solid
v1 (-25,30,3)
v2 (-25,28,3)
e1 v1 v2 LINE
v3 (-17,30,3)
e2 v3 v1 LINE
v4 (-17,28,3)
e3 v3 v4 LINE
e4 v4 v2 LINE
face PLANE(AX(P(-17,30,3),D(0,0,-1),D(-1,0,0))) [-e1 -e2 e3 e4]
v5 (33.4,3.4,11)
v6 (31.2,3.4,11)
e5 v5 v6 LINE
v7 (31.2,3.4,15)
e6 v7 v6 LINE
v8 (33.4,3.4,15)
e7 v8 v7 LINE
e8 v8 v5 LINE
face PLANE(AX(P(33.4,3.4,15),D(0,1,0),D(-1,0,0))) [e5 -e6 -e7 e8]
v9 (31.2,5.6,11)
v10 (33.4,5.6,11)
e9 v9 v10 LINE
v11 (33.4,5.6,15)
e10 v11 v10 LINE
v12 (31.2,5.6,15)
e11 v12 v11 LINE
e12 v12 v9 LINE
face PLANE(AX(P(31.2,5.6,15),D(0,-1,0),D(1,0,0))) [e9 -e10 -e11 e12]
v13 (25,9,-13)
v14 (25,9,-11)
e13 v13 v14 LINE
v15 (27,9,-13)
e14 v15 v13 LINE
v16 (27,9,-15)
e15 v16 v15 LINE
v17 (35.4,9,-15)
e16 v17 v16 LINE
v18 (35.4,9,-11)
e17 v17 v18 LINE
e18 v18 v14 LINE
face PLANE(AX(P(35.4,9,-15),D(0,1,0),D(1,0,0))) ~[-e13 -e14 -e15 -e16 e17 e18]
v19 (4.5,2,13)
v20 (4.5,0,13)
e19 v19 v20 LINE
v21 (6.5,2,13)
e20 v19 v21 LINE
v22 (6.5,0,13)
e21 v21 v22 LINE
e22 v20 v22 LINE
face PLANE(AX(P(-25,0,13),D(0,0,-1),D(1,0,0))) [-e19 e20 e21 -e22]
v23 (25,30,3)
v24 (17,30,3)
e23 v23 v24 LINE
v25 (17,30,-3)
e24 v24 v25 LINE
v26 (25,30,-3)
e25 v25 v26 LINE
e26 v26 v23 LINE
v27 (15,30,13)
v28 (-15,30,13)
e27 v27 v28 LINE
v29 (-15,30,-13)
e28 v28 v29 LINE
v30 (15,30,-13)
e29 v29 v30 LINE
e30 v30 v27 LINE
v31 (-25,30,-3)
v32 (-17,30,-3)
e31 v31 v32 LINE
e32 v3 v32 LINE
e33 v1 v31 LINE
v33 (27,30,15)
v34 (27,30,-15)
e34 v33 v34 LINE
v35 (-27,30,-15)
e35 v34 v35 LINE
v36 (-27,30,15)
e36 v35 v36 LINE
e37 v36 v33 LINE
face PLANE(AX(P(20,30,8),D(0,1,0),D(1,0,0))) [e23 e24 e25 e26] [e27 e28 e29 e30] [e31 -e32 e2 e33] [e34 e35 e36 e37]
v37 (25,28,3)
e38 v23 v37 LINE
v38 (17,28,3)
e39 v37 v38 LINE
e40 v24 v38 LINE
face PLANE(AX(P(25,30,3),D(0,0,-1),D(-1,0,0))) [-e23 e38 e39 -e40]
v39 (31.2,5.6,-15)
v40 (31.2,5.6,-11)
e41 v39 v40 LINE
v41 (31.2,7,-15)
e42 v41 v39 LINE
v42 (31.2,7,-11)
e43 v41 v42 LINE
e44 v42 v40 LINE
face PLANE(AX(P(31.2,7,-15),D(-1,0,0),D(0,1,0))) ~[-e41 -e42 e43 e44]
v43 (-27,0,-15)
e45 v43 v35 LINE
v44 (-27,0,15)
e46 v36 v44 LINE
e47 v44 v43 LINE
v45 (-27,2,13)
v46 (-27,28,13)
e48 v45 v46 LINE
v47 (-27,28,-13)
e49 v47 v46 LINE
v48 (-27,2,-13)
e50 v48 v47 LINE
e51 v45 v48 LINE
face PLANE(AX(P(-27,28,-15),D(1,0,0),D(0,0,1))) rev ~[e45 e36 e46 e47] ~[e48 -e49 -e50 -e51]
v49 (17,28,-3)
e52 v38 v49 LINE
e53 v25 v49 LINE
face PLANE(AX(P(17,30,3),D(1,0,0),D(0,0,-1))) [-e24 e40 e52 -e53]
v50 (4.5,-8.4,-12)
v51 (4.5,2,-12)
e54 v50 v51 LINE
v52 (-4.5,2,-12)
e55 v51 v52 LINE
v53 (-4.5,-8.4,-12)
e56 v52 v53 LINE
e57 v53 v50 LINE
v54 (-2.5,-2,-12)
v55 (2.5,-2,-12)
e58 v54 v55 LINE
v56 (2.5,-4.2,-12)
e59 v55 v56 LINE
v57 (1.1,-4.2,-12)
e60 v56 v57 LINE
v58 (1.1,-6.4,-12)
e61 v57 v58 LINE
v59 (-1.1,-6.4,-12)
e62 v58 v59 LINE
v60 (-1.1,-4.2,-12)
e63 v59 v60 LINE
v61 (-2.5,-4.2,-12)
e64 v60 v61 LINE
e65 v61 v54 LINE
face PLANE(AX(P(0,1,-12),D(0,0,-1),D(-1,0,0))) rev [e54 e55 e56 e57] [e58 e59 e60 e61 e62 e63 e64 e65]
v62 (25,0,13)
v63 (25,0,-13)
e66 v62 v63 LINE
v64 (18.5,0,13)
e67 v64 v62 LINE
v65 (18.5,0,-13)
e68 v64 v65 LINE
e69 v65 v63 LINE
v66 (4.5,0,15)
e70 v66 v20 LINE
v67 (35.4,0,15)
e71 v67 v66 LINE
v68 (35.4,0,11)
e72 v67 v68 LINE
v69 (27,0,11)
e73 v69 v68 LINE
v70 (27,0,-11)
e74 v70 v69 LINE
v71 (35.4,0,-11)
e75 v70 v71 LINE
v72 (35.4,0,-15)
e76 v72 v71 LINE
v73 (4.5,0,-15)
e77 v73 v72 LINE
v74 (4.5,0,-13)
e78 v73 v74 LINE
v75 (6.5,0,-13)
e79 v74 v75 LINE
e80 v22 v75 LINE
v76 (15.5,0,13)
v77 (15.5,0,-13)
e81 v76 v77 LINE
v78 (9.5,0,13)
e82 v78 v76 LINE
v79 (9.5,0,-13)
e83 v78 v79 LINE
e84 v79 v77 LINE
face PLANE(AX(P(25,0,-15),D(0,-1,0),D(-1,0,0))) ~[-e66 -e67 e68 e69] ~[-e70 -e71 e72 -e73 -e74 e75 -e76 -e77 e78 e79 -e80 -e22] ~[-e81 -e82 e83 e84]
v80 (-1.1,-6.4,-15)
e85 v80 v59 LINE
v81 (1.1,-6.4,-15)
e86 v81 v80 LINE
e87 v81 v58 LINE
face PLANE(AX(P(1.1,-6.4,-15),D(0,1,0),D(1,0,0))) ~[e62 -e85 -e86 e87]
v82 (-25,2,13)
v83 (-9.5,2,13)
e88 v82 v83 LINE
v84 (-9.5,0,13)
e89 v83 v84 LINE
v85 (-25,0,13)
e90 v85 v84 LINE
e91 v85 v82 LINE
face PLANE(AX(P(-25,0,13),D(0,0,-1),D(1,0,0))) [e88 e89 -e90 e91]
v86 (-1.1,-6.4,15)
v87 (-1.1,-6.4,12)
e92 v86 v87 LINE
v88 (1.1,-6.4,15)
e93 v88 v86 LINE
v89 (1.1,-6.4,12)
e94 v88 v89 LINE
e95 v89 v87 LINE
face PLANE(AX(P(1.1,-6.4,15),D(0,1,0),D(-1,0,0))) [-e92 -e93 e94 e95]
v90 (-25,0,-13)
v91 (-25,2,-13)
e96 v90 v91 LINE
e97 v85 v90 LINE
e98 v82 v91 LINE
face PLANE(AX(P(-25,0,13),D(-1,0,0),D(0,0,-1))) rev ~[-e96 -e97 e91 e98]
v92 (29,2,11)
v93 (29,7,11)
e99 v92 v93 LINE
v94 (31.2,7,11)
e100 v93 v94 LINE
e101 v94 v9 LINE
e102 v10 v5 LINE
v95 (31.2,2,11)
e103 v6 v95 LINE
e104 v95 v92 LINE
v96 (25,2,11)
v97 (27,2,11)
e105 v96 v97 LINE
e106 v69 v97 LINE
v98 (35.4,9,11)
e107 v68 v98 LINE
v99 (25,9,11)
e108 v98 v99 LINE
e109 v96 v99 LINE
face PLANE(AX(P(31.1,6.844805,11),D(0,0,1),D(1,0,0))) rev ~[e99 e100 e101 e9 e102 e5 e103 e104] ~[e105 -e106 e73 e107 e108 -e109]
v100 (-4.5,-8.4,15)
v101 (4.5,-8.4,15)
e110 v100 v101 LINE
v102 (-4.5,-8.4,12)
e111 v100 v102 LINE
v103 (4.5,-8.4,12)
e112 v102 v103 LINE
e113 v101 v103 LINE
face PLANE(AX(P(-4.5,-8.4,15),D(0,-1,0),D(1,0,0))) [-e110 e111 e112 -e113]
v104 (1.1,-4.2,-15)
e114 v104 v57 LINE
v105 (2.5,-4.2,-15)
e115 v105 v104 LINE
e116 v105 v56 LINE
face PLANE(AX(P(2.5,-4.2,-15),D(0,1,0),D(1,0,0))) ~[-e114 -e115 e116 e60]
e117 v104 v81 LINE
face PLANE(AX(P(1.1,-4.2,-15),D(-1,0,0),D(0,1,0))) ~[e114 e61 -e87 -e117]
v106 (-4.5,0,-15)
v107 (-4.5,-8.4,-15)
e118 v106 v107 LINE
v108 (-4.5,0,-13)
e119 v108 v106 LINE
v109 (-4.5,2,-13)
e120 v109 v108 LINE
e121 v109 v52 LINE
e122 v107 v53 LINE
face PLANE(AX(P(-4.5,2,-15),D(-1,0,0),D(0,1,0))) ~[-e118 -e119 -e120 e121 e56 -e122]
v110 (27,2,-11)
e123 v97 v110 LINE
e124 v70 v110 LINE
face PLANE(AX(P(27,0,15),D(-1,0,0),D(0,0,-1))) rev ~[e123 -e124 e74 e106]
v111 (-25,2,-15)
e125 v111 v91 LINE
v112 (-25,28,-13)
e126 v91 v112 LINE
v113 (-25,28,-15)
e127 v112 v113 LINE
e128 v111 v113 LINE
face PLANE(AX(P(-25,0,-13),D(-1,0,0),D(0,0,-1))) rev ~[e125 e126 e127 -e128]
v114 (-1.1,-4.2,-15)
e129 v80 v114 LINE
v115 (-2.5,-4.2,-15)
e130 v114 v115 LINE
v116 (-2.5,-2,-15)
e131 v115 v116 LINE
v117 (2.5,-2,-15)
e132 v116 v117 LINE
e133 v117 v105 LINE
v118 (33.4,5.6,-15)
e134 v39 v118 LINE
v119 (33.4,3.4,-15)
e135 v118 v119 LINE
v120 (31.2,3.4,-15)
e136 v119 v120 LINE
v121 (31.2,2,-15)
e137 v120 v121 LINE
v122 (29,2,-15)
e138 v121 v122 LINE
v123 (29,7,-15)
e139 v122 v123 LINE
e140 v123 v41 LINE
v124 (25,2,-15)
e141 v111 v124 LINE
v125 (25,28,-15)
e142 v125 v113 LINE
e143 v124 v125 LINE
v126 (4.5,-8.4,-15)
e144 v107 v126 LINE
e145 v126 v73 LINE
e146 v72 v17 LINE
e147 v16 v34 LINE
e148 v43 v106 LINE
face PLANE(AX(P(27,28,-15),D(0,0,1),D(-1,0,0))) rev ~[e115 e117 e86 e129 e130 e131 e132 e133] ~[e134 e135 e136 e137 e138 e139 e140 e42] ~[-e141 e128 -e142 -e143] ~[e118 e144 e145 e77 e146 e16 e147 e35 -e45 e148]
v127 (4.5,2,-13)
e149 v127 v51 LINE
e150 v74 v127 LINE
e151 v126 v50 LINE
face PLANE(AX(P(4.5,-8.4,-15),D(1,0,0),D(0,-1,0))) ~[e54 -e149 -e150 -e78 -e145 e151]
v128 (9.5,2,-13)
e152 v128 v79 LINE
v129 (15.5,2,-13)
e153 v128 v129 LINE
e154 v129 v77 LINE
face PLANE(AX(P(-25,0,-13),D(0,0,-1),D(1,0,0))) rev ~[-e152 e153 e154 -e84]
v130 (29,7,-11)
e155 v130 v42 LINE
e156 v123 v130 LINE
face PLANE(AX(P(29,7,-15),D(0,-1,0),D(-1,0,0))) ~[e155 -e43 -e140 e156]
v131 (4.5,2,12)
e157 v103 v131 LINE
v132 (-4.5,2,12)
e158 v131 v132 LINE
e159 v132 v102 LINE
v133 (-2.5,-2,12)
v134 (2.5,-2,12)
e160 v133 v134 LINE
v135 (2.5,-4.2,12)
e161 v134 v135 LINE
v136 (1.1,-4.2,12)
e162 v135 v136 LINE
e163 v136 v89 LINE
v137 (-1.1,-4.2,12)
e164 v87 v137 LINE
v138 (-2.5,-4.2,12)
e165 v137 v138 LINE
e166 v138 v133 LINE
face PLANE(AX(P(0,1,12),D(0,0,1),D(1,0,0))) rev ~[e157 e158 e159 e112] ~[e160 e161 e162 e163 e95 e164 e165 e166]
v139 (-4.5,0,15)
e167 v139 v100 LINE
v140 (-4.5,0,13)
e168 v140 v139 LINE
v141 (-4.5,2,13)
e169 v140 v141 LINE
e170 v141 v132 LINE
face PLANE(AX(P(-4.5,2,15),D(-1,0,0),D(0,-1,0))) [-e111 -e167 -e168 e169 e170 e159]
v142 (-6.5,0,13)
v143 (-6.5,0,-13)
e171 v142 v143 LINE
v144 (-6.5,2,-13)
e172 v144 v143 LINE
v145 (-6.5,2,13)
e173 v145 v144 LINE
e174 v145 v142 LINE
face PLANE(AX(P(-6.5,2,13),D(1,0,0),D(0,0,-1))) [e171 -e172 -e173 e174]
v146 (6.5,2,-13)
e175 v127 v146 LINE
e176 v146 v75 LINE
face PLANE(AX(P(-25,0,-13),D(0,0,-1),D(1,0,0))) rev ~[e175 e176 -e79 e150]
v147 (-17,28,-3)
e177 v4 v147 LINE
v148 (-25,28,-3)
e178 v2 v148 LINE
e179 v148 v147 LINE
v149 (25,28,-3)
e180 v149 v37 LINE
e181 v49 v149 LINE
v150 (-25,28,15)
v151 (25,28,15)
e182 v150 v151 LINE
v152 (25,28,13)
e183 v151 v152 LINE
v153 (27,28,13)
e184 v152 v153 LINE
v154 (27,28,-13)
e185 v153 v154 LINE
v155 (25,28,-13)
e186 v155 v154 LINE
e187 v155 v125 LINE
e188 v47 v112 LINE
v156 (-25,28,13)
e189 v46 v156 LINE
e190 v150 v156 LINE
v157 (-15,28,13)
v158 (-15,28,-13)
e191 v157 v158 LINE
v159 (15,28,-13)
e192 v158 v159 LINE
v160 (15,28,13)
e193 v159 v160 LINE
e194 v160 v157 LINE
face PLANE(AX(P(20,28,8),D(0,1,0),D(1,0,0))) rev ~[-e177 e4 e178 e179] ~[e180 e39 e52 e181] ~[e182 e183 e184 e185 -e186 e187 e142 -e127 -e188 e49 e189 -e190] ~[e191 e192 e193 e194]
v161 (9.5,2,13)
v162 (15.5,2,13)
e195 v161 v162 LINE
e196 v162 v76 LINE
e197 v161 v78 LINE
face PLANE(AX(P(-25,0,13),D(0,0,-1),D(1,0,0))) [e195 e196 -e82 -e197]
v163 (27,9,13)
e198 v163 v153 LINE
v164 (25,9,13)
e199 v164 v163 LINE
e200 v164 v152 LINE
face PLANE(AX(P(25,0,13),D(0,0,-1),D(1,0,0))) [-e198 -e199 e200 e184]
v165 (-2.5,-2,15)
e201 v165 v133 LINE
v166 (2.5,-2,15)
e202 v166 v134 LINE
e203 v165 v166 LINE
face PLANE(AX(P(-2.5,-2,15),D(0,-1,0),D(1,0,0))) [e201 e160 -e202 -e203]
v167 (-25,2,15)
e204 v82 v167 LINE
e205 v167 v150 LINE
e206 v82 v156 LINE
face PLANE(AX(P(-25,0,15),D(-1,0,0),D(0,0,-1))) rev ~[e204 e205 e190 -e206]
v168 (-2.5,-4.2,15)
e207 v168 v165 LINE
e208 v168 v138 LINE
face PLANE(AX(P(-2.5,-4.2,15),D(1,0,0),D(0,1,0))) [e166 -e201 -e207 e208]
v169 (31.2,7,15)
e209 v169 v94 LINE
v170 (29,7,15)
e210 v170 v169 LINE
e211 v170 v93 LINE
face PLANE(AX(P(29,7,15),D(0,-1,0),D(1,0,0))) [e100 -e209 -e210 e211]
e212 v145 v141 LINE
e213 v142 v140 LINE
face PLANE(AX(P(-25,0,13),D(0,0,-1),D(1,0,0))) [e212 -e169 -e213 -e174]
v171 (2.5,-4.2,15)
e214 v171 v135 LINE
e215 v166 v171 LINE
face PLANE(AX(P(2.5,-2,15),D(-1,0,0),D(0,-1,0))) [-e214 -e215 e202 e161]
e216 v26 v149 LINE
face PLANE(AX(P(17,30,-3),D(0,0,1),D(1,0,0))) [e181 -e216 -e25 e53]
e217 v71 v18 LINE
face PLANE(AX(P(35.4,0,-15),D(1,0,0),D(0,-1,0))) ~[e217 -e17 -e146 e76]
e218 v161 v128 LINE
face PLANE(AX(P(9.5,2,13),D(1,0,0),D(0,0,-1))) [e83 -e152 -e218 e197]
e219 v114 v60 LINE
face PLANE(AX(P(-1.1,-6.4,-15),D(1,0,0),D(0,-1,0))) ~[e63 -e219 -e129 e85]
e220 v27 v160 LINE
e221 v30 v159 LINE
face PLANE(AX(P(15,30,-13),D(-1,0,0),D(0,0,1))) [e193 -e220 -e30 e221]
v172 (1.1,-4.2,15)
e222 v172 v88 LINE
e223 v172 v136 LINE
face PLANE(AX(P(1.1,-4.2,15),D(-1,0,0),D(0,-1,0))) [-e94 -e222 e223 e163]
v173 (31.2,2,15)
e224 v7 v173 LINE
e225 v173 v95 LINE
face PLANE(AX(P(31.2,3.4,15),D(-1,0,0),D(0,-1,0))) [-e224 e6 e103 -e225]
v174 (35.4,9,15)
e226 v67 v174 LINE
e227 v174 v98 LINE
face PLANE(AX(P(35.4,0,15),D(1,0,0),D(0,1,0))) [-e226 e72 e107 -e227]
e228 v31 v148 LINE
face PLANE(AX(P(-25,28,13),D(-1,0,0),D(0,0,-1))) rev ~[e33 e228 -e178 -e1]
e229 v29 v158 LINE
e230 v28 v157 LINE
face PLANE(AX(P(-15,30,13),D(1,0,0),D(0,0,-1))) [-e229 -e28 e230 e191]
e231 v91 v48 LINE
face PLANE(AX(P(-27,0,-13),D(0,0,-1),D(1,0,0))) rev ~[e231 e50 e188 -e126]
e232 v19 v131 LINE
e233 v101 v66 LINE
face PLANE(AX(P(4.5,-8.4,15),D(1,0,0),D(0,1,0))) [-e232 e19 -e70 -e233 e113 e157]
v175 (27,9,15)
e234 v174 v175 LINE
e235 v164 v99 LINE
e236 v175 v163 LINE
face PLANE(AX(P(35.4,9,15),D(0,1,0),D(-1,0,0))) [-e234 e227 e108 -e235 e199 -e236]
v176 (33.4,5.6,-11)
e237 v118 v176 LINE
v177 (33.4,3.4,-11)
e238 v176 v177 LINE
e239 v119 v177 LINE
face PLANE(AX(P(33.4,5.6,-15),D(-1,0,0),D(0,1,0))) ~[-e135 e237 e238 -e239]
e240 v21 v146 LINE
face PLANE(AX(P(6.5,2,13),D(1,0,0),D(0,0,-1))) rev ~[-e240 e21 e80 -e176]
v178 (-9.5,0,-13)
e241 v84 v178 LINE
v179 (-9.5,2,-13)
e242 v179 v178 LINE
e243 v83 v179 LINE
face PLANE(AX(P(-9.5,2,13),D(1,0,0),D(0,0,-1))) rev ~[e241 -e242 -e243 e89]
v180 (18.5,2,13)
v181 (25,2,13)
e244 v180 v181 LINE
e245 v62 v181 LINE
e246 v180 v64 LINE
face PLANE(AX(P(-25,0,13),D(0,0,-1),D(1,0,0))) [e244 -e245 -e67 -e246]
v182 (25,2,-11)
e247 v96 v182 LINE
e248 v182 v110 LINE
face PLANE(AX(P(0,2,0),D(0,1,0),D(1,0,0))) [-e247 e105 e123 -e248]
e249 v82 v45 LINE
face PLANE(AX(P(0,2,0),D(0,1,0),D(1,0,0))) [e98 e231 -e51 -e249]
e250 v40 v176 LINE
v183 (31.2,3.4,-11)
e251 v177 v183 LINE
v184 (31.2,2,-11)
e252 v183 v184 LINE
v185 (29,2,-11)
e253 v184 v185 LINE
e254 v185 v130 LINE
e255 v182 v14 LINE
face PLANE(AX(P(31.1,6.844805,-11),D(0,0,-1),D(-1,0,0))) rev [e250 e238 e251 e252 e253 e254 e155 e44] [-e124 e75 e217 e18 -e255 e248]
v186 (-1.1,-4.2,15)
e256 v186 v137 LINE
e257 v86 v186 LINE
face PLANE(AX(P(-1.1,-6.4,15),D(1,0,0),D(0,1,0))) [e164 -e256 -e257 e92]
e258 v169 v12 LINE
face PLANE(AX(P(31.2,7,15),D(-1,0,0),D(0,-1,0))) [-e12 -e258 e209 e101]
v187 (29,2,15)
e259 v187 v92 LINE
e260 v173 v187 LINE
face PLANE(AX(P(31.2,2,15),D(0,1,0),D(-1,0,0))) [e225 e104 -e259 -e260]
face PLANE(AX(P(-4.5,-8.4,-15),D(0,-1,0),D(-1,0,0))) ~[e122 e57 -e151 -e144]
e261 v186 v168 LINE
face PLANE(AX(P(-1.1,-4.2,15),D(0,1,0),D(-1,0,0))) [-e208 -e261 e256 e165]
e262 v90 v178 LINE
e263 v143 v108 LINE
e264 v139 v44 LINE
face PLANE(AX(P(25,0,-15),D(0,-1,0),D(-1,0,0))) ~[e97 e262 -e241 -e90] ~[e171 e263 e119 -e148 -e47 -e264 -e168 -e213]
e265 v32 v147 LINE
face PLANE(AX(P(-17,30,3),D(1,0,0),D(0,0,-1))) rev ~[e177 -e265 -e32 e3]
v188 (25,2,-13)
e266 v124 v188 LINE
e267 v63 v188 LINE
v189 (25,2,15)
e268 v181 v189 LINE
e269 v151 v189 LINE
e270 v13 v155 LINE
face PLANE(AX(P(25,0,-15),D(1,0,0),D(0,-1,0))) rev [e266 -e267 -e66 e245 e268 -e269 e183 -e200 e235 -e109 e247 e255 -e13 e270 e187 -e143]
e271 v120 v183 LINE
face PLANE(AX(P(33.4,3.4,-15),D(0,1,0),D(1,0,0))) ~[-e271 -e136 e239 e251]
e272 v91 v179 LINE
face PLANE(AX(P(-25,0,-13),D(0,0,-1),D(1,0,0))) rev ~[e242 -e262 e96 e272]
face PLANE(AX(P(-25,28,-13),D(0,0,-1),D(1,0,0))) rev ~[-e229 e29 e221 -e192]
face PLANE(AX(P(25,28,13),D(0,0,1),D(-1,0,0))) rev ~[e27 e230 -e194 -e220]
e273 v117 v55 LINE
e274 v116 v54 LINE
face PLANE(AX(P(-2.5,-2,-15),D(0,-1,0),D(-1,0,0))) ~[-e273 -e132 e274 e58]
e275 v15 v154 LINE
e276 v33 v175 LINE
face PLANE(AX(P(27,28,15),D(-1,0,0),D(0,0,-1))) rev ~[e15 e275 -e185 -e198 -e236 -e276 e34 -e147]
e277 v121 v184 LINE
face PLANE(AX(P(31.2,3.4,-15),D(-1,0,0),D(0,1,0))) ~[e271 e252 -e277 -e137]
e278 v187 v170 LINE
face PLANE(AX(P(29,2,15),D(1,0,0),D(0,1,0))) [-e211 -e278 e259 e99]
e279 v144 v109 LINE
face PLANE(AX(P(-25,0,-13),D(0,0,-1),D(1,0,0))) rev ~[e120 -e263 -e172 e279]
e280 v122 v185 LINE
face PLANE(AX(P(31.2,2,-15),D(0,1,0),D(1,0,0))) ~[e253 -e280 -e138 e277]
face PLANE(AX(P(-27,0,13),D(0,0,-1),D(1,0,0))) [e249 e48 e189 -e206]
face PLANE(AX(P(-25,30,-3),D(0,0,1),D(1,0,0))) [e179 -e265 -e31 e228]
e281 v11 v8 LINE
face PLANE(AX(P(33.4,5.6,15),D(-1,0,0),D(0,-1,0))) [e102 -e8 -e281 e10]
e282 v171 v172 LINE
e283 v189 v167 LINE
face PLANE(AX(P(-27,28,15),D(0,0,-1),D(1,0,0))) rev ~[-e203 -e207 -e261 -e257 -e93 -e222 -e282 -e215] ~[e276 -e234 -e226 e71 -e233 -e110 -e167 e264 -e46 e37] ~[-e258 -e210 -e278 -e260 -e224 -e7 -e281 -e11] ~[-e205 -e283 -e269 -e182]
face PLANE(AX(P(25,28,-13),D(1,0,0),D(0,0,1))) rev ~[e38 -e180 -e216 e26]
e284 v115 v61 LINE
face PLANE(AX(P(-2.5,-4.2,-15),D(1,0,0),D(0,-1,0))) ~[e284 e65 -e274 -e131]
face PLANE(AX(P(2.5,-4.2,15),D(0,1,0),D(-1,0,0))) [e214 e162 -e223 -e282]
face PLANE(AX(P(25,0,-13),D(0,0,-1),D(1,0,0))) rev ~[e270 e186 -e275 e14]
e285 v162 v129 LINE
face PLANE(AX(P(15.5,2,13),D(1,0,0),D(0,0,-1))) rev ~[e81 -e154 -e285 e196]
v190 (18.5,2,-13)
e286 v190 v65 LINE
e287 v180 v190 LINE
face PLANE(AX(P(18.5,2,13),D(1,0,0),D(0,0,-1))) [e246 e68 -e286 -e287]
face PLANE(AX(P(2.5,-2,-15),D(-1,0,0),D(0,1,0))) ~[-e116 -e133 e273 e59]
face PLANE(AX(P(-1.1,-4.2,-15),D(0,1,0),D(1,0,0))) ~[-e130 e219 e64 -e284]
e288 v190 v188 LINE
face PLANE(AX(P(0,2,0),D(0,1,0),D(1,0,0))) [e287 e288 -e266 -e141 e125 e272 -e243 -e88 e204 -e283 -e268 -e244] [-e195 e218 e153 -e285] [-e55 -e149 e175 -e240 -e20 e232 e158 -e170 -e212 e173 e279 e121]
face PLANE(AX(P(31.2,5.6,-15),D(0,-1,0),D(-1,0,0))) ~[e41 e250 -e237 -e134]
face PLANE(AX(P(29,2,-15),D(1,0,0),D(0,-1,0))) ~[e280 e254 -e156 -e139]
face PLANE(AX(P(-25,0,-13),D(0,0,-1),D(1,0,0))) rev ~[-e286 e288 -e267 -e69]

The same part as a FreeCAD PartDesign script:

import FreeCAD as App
import Part
import Sketcher
from FreeCAD import Vector

doc = App.newDocument("Part")
body = doc.addObject("PartDesign::Body", "Body")

# Sketch on XZ plane
sketch1 = body.newObject("Sketcher::SketchObject", "Sketch")
sketch1.AttachmentSupport = (doc.getObject("XZ_Plane"), [""])
sketch1.MapMode = "FlatFace"
sketch1.addGeometry(Part.LineSegment(Vector(-27, -15, 0), Vector(-27, 15, 0)), False)
sketch1.addGeometry(Part.LineSegment(Vector(-27, 15, 0), Vector(27, 15, 0)), False)
sketch1.addGeometry(Part.LineSegment(Vector(27, 15, 0), Vector(27, -15, 0)), False)
sketch1.addGeometry(Part.LineSegment(Vector(27, -15, 0), Vector(-27, -15, 0)), False)
sketch1.addGeometry(Part.LineSegment(Vector(25, 13, 0), Vector(-25, 13, 0)), False)
sketch1.addGeometry(Part.LineSegment(Vector(-25, 13, 0), Vector(-25, -13, 0)), False)
sketch1.addGeometry(Part.LineSegment(Vector(-25, -13, 0), Vector(25, -13, 0)), False)
sketch1.addGeometry(Part.LineSegment(Vector(25, -13, 0), Vector(25, 13, 0)), False)
sketch1.addConstraint(Sketcher.Constraint("Coincident", 0, 2, 1, 1))
sketch1.addConstraint(Sketcher.Constraint("Coincident", 1, 2, 2, 1))
sketch1.addConstraint(Sketcher.Constraint("Coincident", 2, 2, 3, 1))
sketch1.addConstraint(Sketcher.Constraint("Coincident", 3, 2, 0, 1))
sketch1.addConstraint(Sketcher.Constraint("Coincident", 4, 2, 5, 1))
sketch1.addConstraint(Sketcher.Constraint("Coincident", 5, 2, 6, 1))
sketch1.addConstraint(Sketcher.Constraint("Coincident", 6, 2, 7, 1))
sketch1.addConstraint(Sketcher.Constraint("Coincident", 7, 2, 4, 1))
sketch1.addConstraint(Sketcher.Constraint("Vertical", 0))
sketch1.addConstraint(Sketcher.Constraint("Horizontal", 1))
sketch1.addConstraint(Sketcher.Constraint("Vertical", 2))
sketch1.addConstraint(Sketcher.Constraint("Horizontal", 3))
sketch1.addConstraint(Sketcher.Constraint("Horizontal", 4))
sketch1.addConstraint(Sketcher.Constraint("Vertical", 5))
sketch1.addConstraint(Sketcher.Constraint("Horizontal", 6))
sketch1.addConstraint(Sketcher.Constraint("Vertical", 7))
sketch1.addConstraint(Sketcher.Constraint("Symmetric", 0, 2, 2, 2, -1, 1))
sketch1.addConstraint(Sketcher.Constraint("Symmetric", 4, 2, 6, 2, -1, 1))
sketch1.addConstraint(Sketcher.Constraint("DistanceX", 1, 1, 1, 2, 54.0))
sketch1.addConstraint(Sketcher.Constraint("DistanceX", 4, 2, 4, 1, 50.0))
sketch1.addConstraint(Sketcher.Constraint("DistanceY", 0, 1, 0, 2, 30.0))
sketch1.addConstraint(Sketcher.Constraint("DistanceY", 5, 2, 5, 1, 26.0))
pad1 = body.newObject("PartDesign::Pad", "Pad")
pad1.Profile = sketch1
pad1.Length = 2
pad1.Reversed = True

# Sketch on XZ plane
sketch2 = body.newObject("Sketcher::SketchObject", "Sketch001")
sketch2.AttachmentSupport = (doc.getObject("XZ_Plane"), [""])
sketch2.MapMode = "FlatFace"
sketch2.addGeometry(Part.LineSegment(Vector(25, -15, 0), Vector(25, -13, 0)), False)
sketch2.addGeometry(Part.LineSegment(Vector(25, -13, 0), Vector(27, -13, 0)), False)
sketch2.addGeometry(Part.LineSegment(Vector(27, -13, 0), Vector(27, -15, 0)), False)
sketch2.addGeometry(Part.LineSegment(Vector(27, -15, 0), Vector(25, -15, 0)), False)
sketch2.addGeometry(Part.LineSegment(Vector(25, 13, 0), Vector(25, 15, 0)), False)
sketch2.addGeometry(Part.LineSegment(Vector(25, 15, 0), Vector(27, 15, 0)), False)
sketch2.addGeometry(Part.LineSegment(Vector(27, 15, 0), Vector(27, 13, 0)), False)
sketch2.addGeometry(Part.LineSegment(Vector(27, 13, 0), Vector(25, 13, 0)), False)
sketch2.addGeometry(Part.LineSegment(Vector(-27, 13, 0), Vector(-27, 15, 0)), False)
sketch2.addGeometry(Part.LineSegment(Vector(-27, 15, 0), Vector(-25, 15, 0)), False)
sketch2.addGeometry(Part.LineSegment(Vector(-25, 15, 0), Vector(-25, 13, 0)), False)
sketch2.addGeometry(Part.LineSegment(Vector(-25, 13, 0), Vector(-27, 13, 0)), False)
sketch2.addGeometry(Part.LineSegment(Vector(-27, -15, 0), Vector(-27, -13, 0)), False)
sketch2.addGeometry(Part.LineSegment(Vector(-27, -13, 0), Vector(-25, -13, 0)), False)
sketch2.addGeometry(Part.LineSegment(Vector(-25, -13, 0), Vector(-25, -15, 0)), False)
sketch2.addGeometry(Part.LineSegment(Vector(-25, -15, 0), Vector(-27, -15, 0)), False)
sketch2.addConstraint(Sketcher.Constraint("Coincident", 0, 2, 1, 1))
sketch2.addConstraint(Sketcher.Constraint("Coincident", 1, 2, 2, 1))
sketch2.addConstraint(Sketcher.Constraint("Coincident", 2, 2, 3, 1))
sketch2.addConstraint(Sketcher.Constraint("Coincident", 3, 2, 0, 1))
sketch2.addConstraint(Sketcher.Constraint("Coincident", 4, 2, 5, 1))
sketch2.addConstraint(Sketcher.Constraint("Coincident", 5, 2, 6, 1))
sketch2.addConstraint(Sketcher.Constraint("Coincident", 6, 2, 7, 1))
sketch2.addConstraint(Sketcher.Constraint("Coincident", 7, 2, 4, 1))
sketch2.addConstraint(Sketcher.Constraint("Coincident", 8, 2, 9, 1))
sketch2.addConstraint(Sketcher.Constraint("Coincident", 9, 2, 10, 1))
sketch2.addConstraint(Sketcher.Constraint("Coincident", 10, 2, 11, 1))
sketch2.addConstraint(Sketcher.Constraint("Coincident", 11, 2, 8, 1))
sketch2.addConstraint(Sketcher.Constraint("Coincident", 12, 2, 13, 1))
sketch2.addConstraint(Sketcher.Constraint("Coincident", 13, 2, 14, 1))
sketch2.addConstraint(Sketcher.Constraint("Coincident", 14, 2, 15, 1))
sketch2.addConstraint(Sketcher.Constraint("Coincident", 15, 2, 12, 1))
sketch2.addConstraint(Sketcher.Constraint("Vertical", 0))
sketch2.addConstraint(Sketcher.Constraint("Horizontal", 1))
sketch2.addConstraint(Sketcher.Constraint("Vertical", 2))
sketch2.addConstraint(Sketcher.Constraint("Horizontal", 3))
sketch2.addConstraint(Sketcher.Constraint("Vertical", 4))
sketch2.addConstraint(Sketcher.Constraint("Horizontal", 5))
sketch2.addConstraint(Sketcher.Constraint("Vertical", 6))
sketch2.addConstraint(Sketcher.Constraint("Horizontal", 7))
sketch2.addConstraint(Sketcher.Constraint("Vertical", 8))
sketch2.addConstraint(Sketcher.Constraint("Horizontal", 9))
sketch2.addConstraint(Sketcher.Constraint("Vertical", 10))
sketch2.addConstraint(Sketcher.Constraint("Horizontal", 11))
sketch2.addConstraint(Sketcher.Constraint("Vertical", 12))
sketch2.addConstraint(Sketcher.Constraint("Horizontal", 13))
sketch2.addConstraint(Sketcher.Constraint("Vertical", 14))
sketch2.addConstraint(Sketcher.Constraint("Horizontal", 15))
sketch2.addConstraint(Sketcher.Constraint("Symmetric", 2, 2, 8, 2, -1, 1))
sketch2.addConstraint(Sketcher.Constraint("Symmetric", 0, 2, 10, 2, -1, 1))
sketch2.addConstraint(Sketcher.Constraint("Symmetric", 6, 2, 12, 2, -1, 1))
sketch2.addConstraint(Sketcher.Constraint("Symmetric", 4, 2, 14, 2, -1, 1))
sketch2.addConstraint(Sketcher.Constraint("Symmetric", 5, 2, 8, 2, -2))
sketch2.addConstraint(Sketcher.Constraint("Symmetric", 7, 2, 10, 2, -2))
sketch2.addConstraint(Sketcher.Constraint("Equal", 15, 0))
sketch2.addConstraint(Sketcher.Constraint("DistanceX", 1, 1, 1, 2, 2.0))
sketch2.addConstraint(Sketcher.Constraint("DistanceX", -1, 1, 0, 2, 25.0))
sketch2.addConstraint(Sketcher.Constraint("DistanceY", 0, 2, -1, 1, 13.0))
pad2 = body.newObject("PartDesign::Pad", "Pad001")
pad2.Profile = sketch2
pad2.Length = 28
pad2.Reversed = True

# Sketch on XY plane
sketch3 = body.newObject("Sketcher::SketchObject", "Sketch002")
sketch3.AttachmentSupport = (doc.getObject("XY_Plane"), [""])
sketch3.MapMode = "FlatFace"
sketch3.AttachmentOffset = App.Placement(Vector(0, 0, 15), App.Rotation())
sketch3.addGeometry(Part.LineSegment(Vector(35.4, 0, 0), Vector(35.4, 9, 0)), False)
sketch3.addGeometry(Part.LineSegment(Vector(35.4, 9, 0), Vector(25, 9, 0)), False)
sketch3.addGeometry(Part.LineSegment(Vector(25, 9, 0), Vector(25, 0, 0)), False)
sketch3.addGeometry(Part.LineSegment(Vector(25, 0, 0), Vector(35.4, 0, 0)), False)
sketch3.addGeometry(Part.LineSegment(Vector(29, 7, 0), Vector(31.2, 7, 0)), False)
sketch3.addGeometry(Part.LineSegment(Vector(31.2, 7, 0), Vector(31.2, 5.6, 0)), False)
sketch3.addGeometry(Part.LineSegment(Vector(31.2, 5.6, 0), Vector(33.4, 5.6, 0)), False)
sketch3.addGeometry(Part.LineSegment(Vector(33.4, 5.6, 0), Vector(33.4, 3.4, 0)), False)
sketch3.addGeometry(Part.LineSegment(Vector(33.4, 3.4, 0), Vector(31.2, 3.4, 0)), False)
sketch3.addGeometry(Part.LineSegment(Vector(31.2, 3.4, 0), Vector(31.2, 2, 0)), False)
sketch3.addGeometry(Part.LineSegment(Vector(31.2, 2, 0), Vector(29, 2, 0)), False)
sketch3.addGeometry(Part.LineSegment(Vector(29, 2, 0), Vector(29, 7, 0)), False)
sketch3.addConstraint(Sketcher.Constraint("Coincident", 0, 2, 1, 1))
sketch3.addConstraint(Sketcher.Constraint("Coincident", 1, 2, 2, 1))
sketch3.addConstraint(Sketcher.Constraint("Coincident", 2, 2, 3, 1))
sketch3.addConstraint(Sketcher.Constraint("Coincident", 3, 2, 0, 1))
sketch3.addConstraint(Sketcher.Constraint("Coincident", 4, 2, 5, 1))
sketch3.addConstraint(Sketcher.Constraint("Coincident", 5, 2, 6, 1))
sketch3.addConstraint(Sketcher.Constraint("Coincident", 6, 2, 7, 1))
sketch3.addConstraint(Sketcher.Constraint("Coincident", 7, 2, 8, 1))
sketch3.addConstraint(Sketcher.Constraint("Coincident", 8, 2, 9, 1))
sketch3.addConstraint(Sketcher.Constraint("Coincident", 9, 2, 10, 1))
sketch3.addConstraint(Sketcher.Constraint("Coincident", 10, 2, 11, 1))
sketch3.addConstraint(Sketcher.Constraint("Coincident", 11, 2, 4, 1))
sketch3.addConstraint(Sketcher.Constraint("Vertical", 0))
sketch3.addConstraint(Sketcher.Constraint("Horizontal", 1))
sketch3.addConstraint(Sketcher.Constraint("Vertical", 2))
sketch3.addConstraint(Sketcher.Constraint("Horizontal", 3))
sketch3.addConstraint(Sketcher.Constraint("Horizontal", 4))
sketch3.addConstraint(Sketcher.Constraint("Vertical", 5))
sketch3.addConstraint(Sketcher.Constraint("Horizontal", 6))
sketch3.addConstraint(Sketcher.Constraint("Vertical", 7))
sketch3.addConstraint(Sketcher.Constraint("Horizontal", 8))
sketch3.addConstraint(Sketcher.Constraint("Vertical", 9))
sketch3.addConstraint(Sketcher.Constraint("Horizontal", 10))
sketch3.addConstraint(Sketcher.Constraint("Vertical", 11))
sketch3.addConstraint(Sketcher.Constraint("PointOnObject", 2, 2, -1))
sketch3.addConstraint(Sketcher.Constraint("Vertical", 5, 2, 8, 2))
sketch3.addConstraint(Sketcher.Constraint("Equal", 4, 6))
sketch3.addConstraint(Sketcher.Constraint("Equal", 10, 7))
sketch3.addConstraint(Sketcher.Constraint("Equal", 5, 9))
sketch3.addConstraint(Sketcher.Constraint("DistanceY", 0, 1, 0, 2, 9.0))
sketch3.addConstraint(Sketcher.Constraint("DistanceY", 11, 1, 11, 2, 5.0))
sketch3.addConstraint(Sketcher.Constraint("DistanceX", 1, 2, 1, 1, 10.4))
sketch3.addConstraint(Sketcher.Constraint("DistanceX", 4, 1, 4, 2, 2.2))
sketch3.addConstraint(Sketcher.Constraint("DistanceX", -1, 1, 1, 2, 25.0))
sketch3.addConstraint(Sketcher.Constraint("DistanceY", -1, 1, 4, 2, 7.0))
sketch3.addConstraint(Sketcher.Constraint("DistanceX", -1, 1, 10, 2, 29.0))
pad3 = body.newObject("PartDesign::Pad", "Pad002")
pad3.Profile = sketch3
pad3.Length = 4
pad3.Reversed = True
doc.recompute()

mirrored = body.newObject("PartDesign::Mirrored", "Mirrored")
mirrored.Originals = [pad3]
mirrored.MirrorPlane = (doc.getObject("XY_Plane"), [""])
body.Tip = mirrored

# Sketch on XY plane
sketch4 = body.newObject("Sketcher::SketchObject", "Sketch003")
sketch4.AttachmentSupport = (doc.getObject("XY_Plane"), [""])
sketch4.MapMode = "FlatFace"
sketch4.AttachmentOffset = App.Placement(Vector(0, 0, 15), App.Rotation())
sketch4.addGeometry(Part.LineSegment(Vector(4.5, 2, 0), Vector(-4.5, 2, 0)), False)
sketch4.addGeometry(Part.LineSegment(Vector(-4.5, 2, 0), Vector(-4.5, -8.4, 0)), False)
sketch4.addGeometry(Part.LineSegment(Vector(-4.5, -8.4, 0), Vector(4.5, -8.4, 0)), False)
sketch4.addGeometry(Part.LineSegment(Vector(4.5, -8.4, 0), Vector(4.5, 2, 0)), False)
sketch4.addGeometry(Part.LineSegment(Vector(1.1, -4.2, 0), Vector(1.1, -6.4, 0)), False)
sketch4.addGeometry(Part.LineSegment(Vector(1.1, -6.4, 0), Vector(-1.1, -6.4, 0)), False)
sketch4.addGeometry(Part.LineSegment(Vector(-1.1, -6.4, 0), Vector(-1.1, -4.2, 0)), False)
sketch4.addGeometry(Part.LineSegment(Vector(-1.1, -4.2, 0), Vector(-2.5, -4.2, 0)), False)
sketch4.addGeometry(Part.LineSegment(Vector(-2.5, -4.2, 0), Vector(-2.5, -2, 0)), False)
sketch4.addGeometry(Part.LineSegment(Vector(-2.5, -2, 0), Vector(2.5, -2, 0)), False)
sketch4.addGeometry(Part.LineSegment(Vector(2.5, -2, 0), Vector(2.5, -4.2, 0)), False)
sketch4.addGeometry(Part.LineSegment(Vector(2.5, -4.2, 0), Vector(1.1, -4.2, 0)), False)
sketch4.addConstraint(Sketcher.Constraint("Coincident", 0, 2, 1, 1))
sketch4.addConstraint(Sketcher.Constraint("Coincident", 1, 2, 2, 1))
sketch4.addConstraint(Sketcher.Constraint("Coincident", 2, 2, 3, 1))
sketch4.addConstraint(Sketcher.Constraint("Coincident", 3, 2, 0, 1))
sketch4.addConstraint(Sketcher.Constraint("Coincident", 4, 2, 5, 1))
sketch4.addConstraint(Sketcher.Constraint("Coincident", 5, 2, 6, 1))
sketch4.addConstraint(Sketcher.Constraint("Coincident", 6, 2, 7, 1))
sketch4.addConstraint(Sketcher.Constraint("Coincident", 7, 2, 8, 1))
sketch4.addConstraint(Sketcher.Constraint("Coincident", 8, 2, 9, 1))
sketch4.addConstraint(Sketcher.Constraint("Coincident", 9, 2, 10, 1))
sketch4.addConstraint(Sketcher.Constraint("Coincident", 10, 2, 11, 1))
sketch4.addConstraint(Sketcher.Constraint("Coincident", 11, 2, 4, 1))
sketch4.addConstraint(Sketcher.Constraint("Horizontal", 0))
sketch4.addConstraint(Sketcher.Constraint("Vertical", 1))
sketch4.addConstraint(Sketcher.Constraint("Horizontal", 2))
sketch4.addConstraint(Sketcher.Constraint("Vertical", 3))
sketch4.addConstraint(Sketcher.Constraint("Vertical", 4))
sketch4.addConstraint(Sketcher.Constraint("Horizontal", 5))
sketch4.addConstraint(Sketcher.Constraint("Vertical", 6))
sketch4.addConstraint(Sketcher.Constraint("Horizontal", 7))
sketch4.addConstraint(Sketcher.Constraint("Vertical", 8))
sketch4.addConstraint(Sketcher.Constraint("Horizontal", 9))
sketch4.addConstraint(Sketcher.Constraint("Vertical", 10))
sketch4.addConstraint(Sketcher.Constraint("Horizontal", 11))
sketch4.addConstraint(Sketcher.Constraint("Symmetric", 7, 2, 10, 2, -2))
sketch4.addConstraint(Sketcher.Constraint("Equal", 7, 11))
sketch4.addConstraint(Sketcher.Constraint("Equal", 5, 4))
sketch4.addConstraint(Sketcher.Constraint("Equal", 6, 8))
sketch4.addConstraint(Sketcher.Constraint("DistanceX", 0, 2, 0, 1, 9.0))
sketch4.addConstraint(Sketcher.Constraint("DistanceX", 9, 1, 9, 2, 5.0))
sketch4.addConstraint(Sketcher.Constraint("DistanceX", 5, 2, 5, 1, 2.2))
sketch4.addConstraint(Sketcher.Constraint("DistanceY", 1, 2, 1, 1, 10.4))
sketch4.addConstraint(Sketcher.Constraint("DistanceY", -1, 1, 0, 2, 2.0))
sketch4.addConstraint(Sketcher.Constraint("DistanceY", 8, 2, -1, 1, 2.0))
sketch4.addConstraint(Sketcher.Constraint("DistanceX", 1, 2, 7, 2, 2.0))
pad4 = body.newObject("PartDesign::Pad", "Pad003")
pad4.Profile = sketch4
pad4.Length = 3
pad4.Reversed = True
doc.recompute()

mirrored2 = body.newObject("PartDesign::Mirrored", "Mirrored001")
mirrored2.Originals = [pad4]
mirrored2.MirrorPlane = (doc.getObject("XY_Plane"), [""])
body.Tip = mirrored2

# Sketch on XZ plane
sketch5 = body.newObject("Sketcher::SketchObject", "Sketch004")
sketch5.AttachmentSupport = (doc.getObject("XZ_Plane"), [""])
sketch5.MapMode = "FlatFace"
sketch5.AttachmentOffset = App.Placement(Vector(0, 0, -28), App.Rotation())
sketch5.addGeometry(Part.LineSegment(Vector(27, 15, 0), Vector(27, -15, 0)), False)
sketch5.addGeometry(Part.LineSegment(Vector(27, -15, 0), Vector(-27, -15, 0)), False)
sketch5.addGeometry(Part.LineSegment(Vector(-27, -15, 0), Vector(-27, 15, 0)), False)
sketch5.addGeometry(Part.LineSegment(Vector(-27, 15, 0), Vector(27, 15, 0)), False)
sketch5.addGeometry(Part.LineSegment(Vector(25, -13, 0), Vector(25, 13, 0)), False)
sketch5.addGeometry(Part.LineSegment(Vector(25, 13, 0), Vector(-25, 13, 0)), False)
sketch5.addGeometry(Part.LineSegment(Vector(-25, 13, 0), Vector(-25, -13, 0)), False)
sketch5.addGeometry(Part.LineSegment(Vector(-25, -13, 0), Vector(25, -13, 0)), False)
sketch5.addConstraint(Sketcher.Constraint("Coincident", 0, 2, 1, 1))
sketch5.addConstraint(Sketcher.Constraint("Coincident", 1, 2, 2, 1))
sketch5.addConstraint(Sketcher.Constraint("Coincident", 2, 2, 3, 1))
sketch5.addConstraint(Sketcher.Constraint("Coincident", 3, 2, 0, 1))
sketch5.addConstraint(Sketcher.Constraint("Coincident", 4, 2, 5, 1))
sketch5.addConstraint(Sketcher.Constraint("Coincident", 5, 2, 6, 1))
sketch5.addConstraint(Sketcher.Constraint("Coincident", 6, 2, 7, 1))
sketch5.addConstraint(Sketcher.Constraint("Coincident", 7, 2, 4, 1))
sketch5.addConstraint(Sketcher.Constraint("Vertical", 0))
sketch5.addConstraint(Sketcher.Constraint("Horizontal", 1))
sketch5.addConstraint(Sketcher.Constraint("Vertical", 2))
sketch5.addConstraint(Sketcher.Constraint("Horizontal", 3))
sketch5.addConstraint(Sketcher.Constraint("Vertical", 4))
sketch5.addConstraint(Sketcher.Constraint("Horizontal", 5))
sketch5.addConstraint(Sketcher.Constraint("Vertical", 6))
sketch5.addConstraint(Sketcher.Constraint("Horizontal", 7))
sketch5.addConstraint(Sketcher.Constraint("Symmetric", 0, 2, 2, 2, -1, 1))
sketch5.addConstraint(Sketcher.Constraint("Symmetric", 4, 2, 6, 2, -1, 1))
sketch5.addConstraint(Sketcher.Constraint("DistanceX", 1, 2, 1, 1, 54.0))
sketch5.addConstraint(Sketcher.Constraint("DistanceX", 5, 2, 5, 1, 50.0))
sketch5.addConstraint(Sketcher.Constraint("DistanceY", 0, 2, 0, 1, 30.0))
sketch5.addConstraint(Sketcher.Constraint("DistanceY", 4, 1, 4, 2, 26.0))
pad5 = body.newObject("PartDesign::Pad", "Pad004")
pad5.Profile = sketch5
pad5.Length = 2
pad5.Reversed = True

# Sketch on XZ plane
sketch6 = body.newObject("Sketcher::SketchObject", "Sketch005")
sketch6.AttachmentSupport = (doc.getObject("XZ_Plane"), [""])
sketch6.MapMode = "FlatFace"
sketch6.AttachmentOffset = App.Placement(Vector(0, 0, -2), App.Rotation())
sketch6.addGeometry(Part.LineSegment(Vector(6.5, -13, 0), Vector(6.5, 13, 0)), False)
sketch6.addGeometry(Part.LineSegment(Vector(6.5, 13, 0), Vector(9.5, 13, 0)), False)
sketch6.addGeometry(Part.LineSegment(Vector(9.5, 13, 0), Vector(9.5, -13, 0)), False)
sketch6.addGeometry(Part.LineSegment(Vector(9.5, -13, 0), Vector(6.5, -13, 0)), False)
sketch6.addGeometry(Part.LineSegment(Vector(-9.5, -13, 0), Vector(-9.5, 13, 0)), False)
sketch6.addGeometry(Part.LineSegment(Vector(-9.5, 13, 0), Vector(-6.5, 13, 0)), False)
sketch6.addGeometry(Part.LineSegment(Vector(-6.5, 13, 0), Vector(-6.5, -13, 0)), False)
sketch6.addGeometry(Part.LineSegment(Vector(-6.5, -13, 0), Vector(-9.5, -13, 0)), False)
sketch6.addGeometry(Part.LineSegment(Vector(15.5, -13, 0), Vector(15.5, 13, 0)), False)
sketch6.addGeometry(Part.LineSegment(Vector(15.5, 13, 0), Vector(18.5, 13, 0)), False)
sketch6.addGeometry(Part.LineSegment(Vector(18.5, 13, 0), Vector(18.5, -13, 0)), False)
sketch6.addGeometry(Part.LineSegment(Vector(18.5, -13, 0), Vector(15.5, -13, 0)), False)
sketch6.addConstraint(Sketcher.Constraint("Coincident", 0, 2, 1, 1))
sketch6.addConstraint(Sketcher.Constraint("Coincident", 1, 2, 2, 1))
sketch6.addConstraint(Sketcher.Constraint("Coincident", 2, 2, 3, 1))
sketch6.addConstraint(Sketcher.Constraint("Coincident", 3, 2, 0, 1))
sketch6.addConstraint(Sketcher.Constraint("Coincident", 4, 2, 5, 1))
sketch6.addConstraint(Sketcher.Constraint("Coincident", 5, 2, 6, 1))
sketch6.addConstraint(Sketcher.Constraint("Coincident", 6, 2, 7, 1))
sketch6.addConstraint(Sketcher.Constraint("Coincident", 7, 2, 4, 1))
sketch6.addConstraint(Sketcher.Constraint("Coincident", 8, 2, 9, 1))
sketch6.addConstraint(Sketcher.Constraint("Coincident", 9, 2, 10, 1))
sketch6.addConstraint(Sketcher.Constraint("Coincident", 10, 2, 11, 1))
sketch6.addConstraint(Sketcher.Constraint("Coincident", 11, 2, 8, 1))
sketch6.addConstraint(Sketcher.Constraint("Vertical", 0))
sketch6.addConstraint(Sketcher.Constraint("Horizontal", 1))
sketch6.addConstraint(Sketcher.Constraint("Vertical", 2))
sketch6.addConstraint(Sketcher.Constraint("Horizontal", 3))
sketch6.addConstraint(Sketcher.Constraint("Vertical", 4))
sketch6.addConstraint(Sketcher.Constraint("Horizontal", 5))
sketch6.addConstraint(Sketcher.Constraint("Vertical", 6))
sketch6.addConstraint(Sketcher.Constraint("Horizontal", 7))
sketch6.addConstraint(Sketcher.Constraint("Vertical", 8))
sketch6.addConstraint(Sketcher.Constraint("Horizontal", 9))
sketch6.addConstraint(Sketcher.Constraint("Vertical", 10))
sketch6.addConstraint(Sketcher.Constraint("Horizontal", 11))
sketch6.addConstraint(Sketcher.Constraint("Symmetric", 2, 2, 4, 2, -1, 1))
sketch6.addConstraint(Sketcher.Constraint("Symmetric", 0, 2, 6, 2, -1, 1))
sketch6.addConstraint(Sketcher.Constraint("Horizontal", 1, 2, 4, 2))
sketch6.addConstraint(Sketcher.Constraint("Horizontal", 5, 2, 8, 2))
sketch6.addConstraint(Sketcher.Constraint("Horizontal", 7, 2, 10, 2))
sketch6.addConstraint(Sketcher.Constraint("Equal", 7, 9))
sketch6.addConstraint(Sketcher.Constraint("DistanceX", 1, 1, 1, 2, 3.0))
sketch6.addConstraint(Sketcher.Constraint("DistanceY", 0, 1, 0, 2, 26.0))
sketch6.addConstraint(Sketcher.Constraint("DistanceX", 4, 2, 0, 2, 16.0))
sketch6.addConstraint(Sketcher.Constraint("DistanceX", 1, 2, 8, 2, 6.0))
pad6 = body.newObject("PartDesign::Pad", "Pad005")
pad6.Profile = sketch6
pad6.Length = 2

# Sketch on XZ plane
sketch7 = body.newObject("Sketcher::SketchObject", "Sketch006")
sketch7.AttachmentSupport = (doc.getObject("XZ_Plane"), [""])
sketch7.MapMode = "FlatFace"
sketch7.AttachmentOffset = App.Placement(Vector(0, 0, -30), App.Rotation())
sketch7.addGeometry(Part.LineSegment(Vector(15, 13, 0), Vector(25, 13, 0)), False)
sketch7.addGeometry(Part.LineSegment(Vector(25, 13, 0), Vector(25, 3, 0)), False)
sketch7.addGeometry(Part.LineSegment(Vector(25, 3, 0), Vector(17, 3, 0)), False)
sketch7.addGeometry(Part.LineSegment(Vector(17, 3, 0), Vector(17, -3, 0)), False)
sketch7.addGeometry(Part.LineSegment(Vector(17, -3, 0), Vector(25, -3, 0)), False)
sketch7.addGeometry(Part.LineSegment(Vector(25, -3, 0), Vector(25, -13, 0)), False)
sketch7.addGeometry(Part.LineSegment(Vector(25, -13, 0), Vector(15, -13, 0)), False)
sketch7.addGeometry(Part.LineSegment(Vector(15, -13, 0), Vector(15, 13, 0)), False)
sketch7.addGeometry(Part.LineSegment(Vector(-15, -13, 0), Vector(-25, -13, 0)), False)
sketch7.addGeometry(Part.LineSegment(Vector(-25, -13, 0), Vector(-25, -3, 0)), False)
sketch7.addGeometry(Part.LineSegment(Vector(-25, -3, 0), Vector(-17, -3, 0)), False)
sketch7.addGeometry(Part.LineSegment(Vector(-17, -3, 0), Vector(-17, 3, 0)), False)
sketch7.addGeometry(Part.LineSegment(Vector(-17, 3, 0), Vector(-25, 3, 0)), False)
sketch7.addGeometry(Part.LineSegment(Vector(-25, 3, 0), Vector(-25, 13, 0)), False)
sketch7.addGeometry(Part.LineSegment(Vector(-25, 13, 0), Vector(-15, 13, 0)), False)
sketch7.addGeometry(Part.LineSegment(Vector(-15, 13, 0), Vector(-15, -13, 0)), False)
sketch7.addConstraint(Sketcher.Constraint("Coincident", 0, 2, 1, 1))
sketch7.addConstraint(Sketcher.Constraint("Coincident", 1, 2, 2, 1))
sketch7.addConstraint(Sketcher.Constraint("Coincident", 2, 2, 3, 1))
sketch7.addConstraint(Sketcher.Constraint("Coincident", 3, 2, 4, 1))
sketch7.addConstraint(Sketcher.Constraint("Coincident", 4, 2, 5, 1))
sketch7.addConstraint(Sketcher.Constraint("Coincident", 5, 2, 6, 1))
sketch7.addConstraint(Sketcher.Constraint("Coincident", 6, 2, 7, 1))
sketch7.addConstraint(Sketcher.Constraint("Coincident", 7, 2, 0, 1))
sketch7.addConstraint(Sketcher.Constraint("Coincident", 8, 2, 9, 1))
sketch7.addConstraint(Sketcher.Constraint("Coincident", 9, 2, 10, 1))
sketch7.addConstraint(Sketcher.Constraint("Coincident", 10, 2, 11, 1))
sketch7.addConstraint(Sketcher.Constraint("Coincident", 11, 2, 12, 1))
sketch7.addConstraint(Sketcher.Constraint("Coincident", 12, 2, 13, 1))
sketch7.addConstraint(Sketcher.Constraint("Coincident", 13, 2, 14, 1))
sketch7.addConstraint(Sketcher.Constraint("Coincident", 14, 2, 15, 1))
sketch7.addConstraint(Sketcher.Constraint("Coincident", 15, 2, 8, 1))
sketch7.addConstraint(Sketcher.Constraint("Horizontal", 0))
sketch7.addConstraint(Sketcher.Constraint("Vertical", 1))
sketch7.addConstraint(Sketcher.Constraint("Horizontal", 2))
sketch7.addConstraint(Sketcher.Constraint("Vertical", 3))
sketch7.addConstraint(Sketcher.Constraint("Horizontal", 4))
sketch7.addConstraint(Sketcher.Constraint("Vertical", 5))
sketch7.addConstraint(Sketcher.Constraint("Horizontal", 6))
sketch7.addConstraint(Sketcher.Constraint("Vertical", 7))
sketch7.addConstraint(Sketcher.Constraint("Horizontal", 8))
sketch7.addConstraint(Sketcher.Constraint("Vertical", 9))
sketch7.addConstraint(Sketcher.Constraint("Horizontal", 10))
sketch7.addConstraint(Sketcher.Constraint("Vertical", 11))
sketch7.addConstraint(Sketcher.Constraint("Horizontal", 12))
sketch7.addConstraint(Sketcher.Constraint("Vertical", 13))
sketch7.addConstraint(Sketcher.Constraint("Horizontal", 14))
sketch7.addConstraint(Sketcher.Constraint("Vertical", 15))
sketch7.addConstraint(Sketcher.Constraint("Symmetric", 0, 2, 8, 2, -1, 1))
sketch7.addConstraint(Sketcher.Constraint("Symmetric", 2, 2, 10, 2, -1, 1))
sketch7.addConstraint(Sketcher.Constraint("Symmetric", 4, 2, 12, 2, -1, 1))
sketch7.addConstraint(Sketcher.Constraint("Symmetric", 6, 2, 14, 2, -1, 1))
sketch7.addConstraint(Sketcher.Constraint("Symmetric", 5, 2, 8, 2, -2))
sketch7.addConstraint(Sketcher.Constraint("Horizontal", 4, 2, 9, 2))
sketch7.addConstraint(Sketcher.Constraint("Equal", 14, 1))
sketch7.addConstraint(Sketcher.Constraint("DistanceX", 0, 1, 0, 2, 10.0))
sketch7.addConstraint(Sketcher.Constraint("DistanceX", 2, 2, 2, 1, 8.0))
sketch7.addConstraint(Sketcher.Constraint("DistanceY", 3, 2, 3, 1, 6.0))
sketch7.addConstraint(Sketcher.Constraint("DistanceX", -1, 1, 0, 2, 25.0))
pad7 = body.newObject("PartDesign::Pad", "Pad006")
pad7.Profile = sketch7
pad7.Length = 2

doc.recompute()
